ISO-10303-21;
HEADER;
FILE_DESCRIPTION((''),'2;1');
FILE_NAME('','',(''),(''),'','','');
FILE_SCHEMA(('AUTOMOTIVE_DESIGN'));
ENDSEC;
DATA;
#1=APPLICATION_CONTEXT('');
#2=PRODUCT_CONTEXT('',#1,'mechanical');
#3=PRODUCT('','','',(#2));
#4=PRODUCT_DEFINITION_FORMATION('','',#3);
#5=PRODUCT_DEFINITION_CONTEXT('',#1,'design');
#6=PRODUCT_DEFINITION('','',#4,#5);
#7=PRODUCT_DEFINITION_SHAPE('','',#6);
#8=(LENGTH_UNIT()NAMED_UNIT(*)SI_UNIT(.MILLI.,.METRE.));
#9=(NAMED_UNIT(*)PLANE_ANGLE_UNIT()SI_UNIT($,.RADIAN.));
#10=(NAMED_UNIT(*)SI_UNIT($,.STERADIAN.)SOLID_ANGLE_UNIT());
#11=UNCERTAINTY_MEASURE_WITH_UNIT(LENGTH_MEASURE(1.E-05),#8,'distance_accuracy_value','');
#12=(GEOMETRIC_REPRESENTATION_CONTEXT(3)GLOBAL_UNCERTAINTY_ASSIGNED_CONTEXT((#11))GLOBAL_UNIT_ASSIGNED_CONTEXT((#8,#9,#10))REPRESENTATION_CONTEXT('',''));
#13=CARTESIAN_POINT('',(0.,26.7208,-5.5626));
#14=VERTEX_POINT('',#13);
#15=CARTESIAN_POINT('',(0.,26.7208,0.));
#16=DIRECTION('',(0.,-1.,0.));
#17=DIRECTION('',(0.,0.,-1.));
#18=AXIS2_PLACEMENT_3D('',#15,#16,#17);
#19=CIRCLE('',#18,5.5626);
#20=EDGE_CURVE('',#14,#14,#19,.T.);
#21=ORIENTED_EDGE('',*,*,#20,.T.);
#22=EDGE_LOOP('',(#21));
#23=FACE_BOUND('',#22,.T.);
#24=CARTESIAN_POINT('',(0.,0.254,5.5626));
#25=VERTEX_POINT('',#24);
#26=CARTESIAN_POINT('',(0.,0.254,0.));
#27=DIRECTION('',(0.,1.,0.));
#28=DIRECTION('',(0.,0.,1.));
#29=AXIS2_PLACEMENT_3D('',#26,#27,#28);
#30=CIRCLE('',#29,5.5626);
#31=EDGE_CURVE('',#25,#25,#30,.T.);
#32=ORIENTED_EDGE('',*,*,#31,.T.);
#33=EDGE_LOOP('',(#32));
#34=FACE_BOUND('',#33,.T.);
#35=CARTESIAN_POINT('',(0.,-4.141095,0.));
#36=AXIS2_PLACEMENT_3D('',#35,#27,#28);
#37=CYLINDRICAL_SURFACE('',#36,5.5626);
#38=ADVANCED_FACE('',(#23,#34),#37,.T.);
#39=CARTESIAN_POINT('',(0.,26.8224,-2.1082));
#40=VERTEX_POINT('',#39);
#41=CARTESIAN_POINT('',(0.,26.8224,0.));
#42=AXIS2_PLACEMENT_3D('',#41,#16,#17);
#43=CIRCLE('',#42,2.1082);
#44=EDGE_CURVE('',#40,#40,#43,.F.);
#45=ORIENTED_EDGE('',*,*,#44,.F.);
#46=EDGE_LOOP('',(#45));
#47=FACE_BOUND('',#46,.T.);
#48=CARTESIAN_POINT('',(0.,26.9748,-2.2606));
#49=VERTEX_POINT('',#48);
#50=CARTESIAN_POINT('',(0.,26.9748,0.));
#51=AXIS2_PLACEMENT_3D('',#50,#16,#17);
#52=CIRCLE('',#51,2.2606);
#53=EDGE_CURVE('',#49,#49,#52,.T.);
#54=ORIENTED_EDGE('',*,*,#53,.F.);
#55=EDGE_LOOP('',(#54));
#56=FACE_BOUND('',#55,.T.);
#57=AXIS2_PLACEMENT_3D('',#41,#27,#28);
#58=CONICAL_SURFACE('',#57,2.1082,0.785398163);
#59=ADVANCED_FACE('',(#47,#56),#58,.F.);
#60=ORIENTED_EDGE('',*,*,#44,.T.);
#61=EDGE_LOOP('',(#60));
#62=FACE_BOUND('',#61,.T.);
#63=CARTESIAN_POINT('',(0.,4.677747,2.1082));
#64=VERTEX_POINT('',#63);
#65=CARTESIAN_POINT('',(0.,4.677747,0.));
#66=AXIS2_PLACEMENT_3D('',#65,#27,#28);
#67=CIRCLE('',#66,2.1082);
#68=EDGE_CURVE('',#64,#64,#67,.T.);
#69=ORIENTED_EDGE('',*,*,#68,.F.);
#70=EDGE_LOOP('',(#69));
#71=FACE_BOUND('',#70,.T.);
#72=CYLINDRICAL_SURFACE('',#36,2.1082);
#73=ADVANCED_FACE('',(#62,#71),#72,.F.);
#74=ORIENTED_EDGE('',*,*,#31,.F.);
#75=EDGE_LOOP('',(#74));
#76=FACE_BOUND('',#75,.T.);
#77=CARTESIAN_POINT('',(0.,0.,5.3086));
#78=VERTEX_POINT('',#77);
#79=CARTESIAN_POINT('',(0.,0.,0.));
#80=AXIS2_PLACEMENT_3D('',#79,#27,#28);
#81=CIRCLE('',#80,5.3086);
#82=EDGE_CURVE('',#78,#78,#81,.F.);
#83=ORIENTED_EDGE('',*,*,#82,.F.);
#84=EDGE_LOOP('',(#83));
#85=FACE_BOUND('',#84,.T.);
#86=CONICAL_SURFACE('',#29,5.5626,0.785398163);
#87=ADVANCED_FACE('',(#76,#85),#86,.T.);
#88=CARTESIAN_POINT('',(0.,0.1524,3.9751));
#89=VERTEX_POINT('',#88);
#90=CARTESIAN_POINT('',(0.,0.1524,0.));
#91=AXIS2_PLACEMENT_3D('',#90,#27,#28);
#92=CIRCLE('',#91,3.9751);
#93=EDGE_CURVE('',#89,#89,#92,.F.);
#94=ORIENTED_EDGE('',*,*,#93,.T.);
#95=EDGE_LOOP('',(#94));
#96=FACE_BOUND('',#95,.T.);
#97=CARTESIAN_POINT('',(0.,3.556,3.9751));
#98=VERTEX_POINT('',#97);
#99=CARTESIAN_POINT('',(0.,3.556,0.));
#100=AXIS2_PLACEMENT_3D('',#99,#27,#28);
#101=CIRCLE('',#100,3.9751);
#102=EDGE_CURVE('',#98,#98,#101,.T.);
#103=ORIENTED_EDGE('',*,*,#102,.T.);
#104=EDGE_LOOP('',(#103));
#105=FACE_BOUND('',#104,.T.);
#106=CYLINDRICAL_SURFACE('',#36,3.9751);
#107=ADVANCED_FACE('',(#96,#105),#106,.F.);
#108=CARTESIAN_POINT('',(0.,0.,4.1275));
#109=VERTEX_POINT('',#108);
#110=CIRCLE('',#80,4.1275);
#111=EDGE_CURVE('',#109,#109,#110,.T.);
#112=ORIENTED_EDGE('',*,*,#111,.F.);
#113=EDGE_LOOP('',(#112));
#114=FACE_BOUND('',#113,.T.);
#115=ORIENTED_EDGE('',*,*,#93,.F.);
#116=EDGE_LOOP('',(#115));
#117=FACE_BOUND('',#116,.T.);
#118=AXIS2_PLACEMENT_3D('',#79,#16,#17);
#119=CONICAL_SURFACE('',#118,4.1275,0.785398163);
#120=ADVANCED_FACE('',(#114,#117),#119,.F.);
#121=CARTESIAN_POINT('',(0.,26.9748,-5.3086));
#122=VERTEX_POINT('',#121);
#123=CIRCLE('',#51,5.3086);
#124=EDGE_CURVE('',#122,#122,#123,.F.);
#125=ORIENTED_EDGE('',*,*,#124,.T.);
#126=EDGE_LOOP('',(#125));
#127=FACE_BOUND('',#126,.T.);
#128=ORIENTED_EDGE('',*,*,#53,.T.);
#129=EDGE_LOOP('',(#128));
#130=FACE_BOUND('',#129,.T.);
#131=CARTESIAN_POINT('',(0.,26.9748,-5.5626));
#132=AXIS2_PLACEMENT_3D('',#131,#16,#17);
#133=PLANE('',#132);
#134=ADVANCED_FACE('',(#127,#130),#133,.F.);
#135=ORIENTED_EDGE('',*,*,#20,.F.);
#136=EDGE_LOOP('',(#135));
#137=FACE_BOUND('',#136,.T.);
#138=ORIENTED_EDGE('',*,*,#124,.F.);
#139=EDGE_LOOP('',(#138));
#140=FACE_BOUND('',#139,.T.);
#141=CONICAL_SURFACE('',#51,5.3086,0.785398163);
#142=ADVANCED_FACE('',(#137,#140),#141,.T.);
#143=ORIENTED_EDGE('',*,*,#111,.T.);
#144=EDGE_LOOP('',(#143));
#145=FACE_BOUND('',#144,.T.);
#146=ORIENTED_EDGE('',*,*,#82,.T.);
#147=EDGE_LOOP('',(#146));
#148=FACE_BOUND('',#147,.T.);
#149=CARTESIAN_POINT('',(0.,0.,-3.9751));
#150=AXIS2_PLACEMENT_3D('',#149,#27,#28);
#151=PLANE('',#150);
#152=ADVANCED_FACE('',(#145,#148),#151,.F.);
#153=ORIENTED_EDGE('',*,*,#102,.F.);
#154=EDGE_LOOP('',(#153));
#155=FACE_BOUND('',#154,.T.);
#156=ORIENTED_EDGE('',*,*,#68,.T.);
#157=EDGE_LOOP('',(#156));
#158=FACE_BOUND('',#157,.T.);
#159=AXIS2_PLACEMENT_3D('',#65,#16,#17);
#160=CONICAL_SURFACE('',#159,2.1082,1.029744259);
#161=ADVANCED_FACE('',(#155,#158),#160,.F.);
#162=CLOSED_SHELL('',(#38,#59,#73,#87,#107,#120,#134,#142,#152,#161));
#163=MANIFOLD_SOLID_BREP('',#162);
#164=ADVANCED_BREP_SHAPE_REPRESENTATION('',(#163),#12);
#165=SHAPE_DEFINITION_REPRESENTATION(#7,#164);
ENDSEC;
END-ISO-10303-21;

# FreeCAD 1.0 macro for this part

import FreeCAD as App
import Part
import Sketcher
from FreeCAD import Vector
Q = App.Units.Quantity


def edges_at(feature, points):
    """Names of the edges that pass closest to the given points."""
    edges = feature.Shape.Edges
    near = lambda p: min(range(len(edges)), key=lambda i: edges[i].distToShape(Part.Vertex(*p))[0])
    return sorted({f"Edge{near(p) + 1}" for p in points})

doc = App.newDocument("Part")
body = doc.addObject("PartDesign::Body", "Body")

# Sketch on YZ plane
sketch1 = body.newObject("Sketcher::SketchObject", "Sketch")
sketch1.AttachmentSupport = (doc.getObject("YZ_Plane"), [""])
sketch1.MapMode = "FlatFace"
sketch1.addGeometry(Part.LineSegment(Vector(0, -4, 0), Vector(0, -5.6, 0)), False)
sketch1.addGeometry(Part.LineSegment(Vector(0, -5.6, 0), Vector(27, -5.6, 0)), False)
sketch1.addGeometry(Part.LineSegment(Vector(27, -5.6, 0), Vector(27, -2.1, 0)), False)
sketch1.addGeometry(Part.LineSegment(Vector(27, -2.1, 0), Vector(4.7, -2.1, 0)), False)
sketch1.addGeometry(Part.LineSegment(Vector(4.7, -2.1, 0), Vector(3.6, -4, 0)), False)
sketch1.addGeometry(Part.LineSegment(Vector(3.6, -4, 0), Vector(0, -4, 0)), False)
sketch1.addConstraint(Sketcher.Constraint("Coincident", 0, 2, 1, 1))
sketch1.addConstraint(Sketcher.Constraint("Coincident", 1, 2, 2, 1))
sketch1.addConstraint(Sketcher.Constraint("Coincident", 2, 2, 3, 1))
sketch1.addConstraint(Sketcher.Constraint("Coincident", 3, 2, 4, 1))
sketch1.addConstraint(Sketcher.Constraint("Coincident", 4, 2, 5, 1))
sketch1.addConstraint(Sketcher.Constraint("Coincident", 5, 2, 0, 1))
sketch1.addConstraint(Sketcher.Constraint("Vertical", 0))
sketch1.addConstraint(Sketcher.Constraint("Horizontal", 1))
sketch1.addConstraint(Sketcher.Constraint("Vertical", 2))
sketch1.addConstraint(Sketcher.Constraint("Horizontal", 3))
sketch1.addConstraint(Sketcher.Constraint("Horizontal", 5))
sketch1.addConstraint(Sketcher.Constraint("PointOnObject", 0, 2, -2))
sketch1.addConstraint(Sketcher.Constraint("Angle", 4, Q("-121 deg")))
sketch1.addConstraint(Sketcher.Constraint("DistanceX", 5, 2, 5, 1, Q("0.14 in")))
sketch1.addConstraint(Sketcher.Constraint("DistanceX", 1, 1, 1, 2, Q("1.062 in")))
sketch1.addConstraint(Sketcher.Constraint("DistanceY", 0, 2, 0, 1, Q("0.0625 in")))
sketch1.addConstraint(Sketcher.Constraint("DistanceY", 2, 1, 2, 2, Q("0.136 in")))
sketch1.addConstraint(Sketcher.Constraint("DistanceY", 0, 2, -1, 1, Q("0.219 in")))
revolution = body.newObject("PartDesign::Revolution", "Revolution")
revolution.Profile = sketch1
revolution.ReferenceAxis = (sketch1, ["H_Axis"])
revolution.Angle = 360
doc.recompute()

chamfer = body.newObject("PartDesign::Chamfer", "Chamfer")
chamfer.Base = (revolution, edges_at(revolution, [(0, 26.975, -5.563), (0, 0, -5.563)]))
chamfer.Size = Q("0.01 in")
doc.recompute()

chamfer2 = body.newObject("PartDesign::Chamfer", "Chamfer001")
chamfer2.Base = (chamfer, edges_at(chamfer, [(0, 26.975, -2.108), (0, 0, -3.975)]))
chamfer2.Size = Q("0.006 in")

doc.recompute()
